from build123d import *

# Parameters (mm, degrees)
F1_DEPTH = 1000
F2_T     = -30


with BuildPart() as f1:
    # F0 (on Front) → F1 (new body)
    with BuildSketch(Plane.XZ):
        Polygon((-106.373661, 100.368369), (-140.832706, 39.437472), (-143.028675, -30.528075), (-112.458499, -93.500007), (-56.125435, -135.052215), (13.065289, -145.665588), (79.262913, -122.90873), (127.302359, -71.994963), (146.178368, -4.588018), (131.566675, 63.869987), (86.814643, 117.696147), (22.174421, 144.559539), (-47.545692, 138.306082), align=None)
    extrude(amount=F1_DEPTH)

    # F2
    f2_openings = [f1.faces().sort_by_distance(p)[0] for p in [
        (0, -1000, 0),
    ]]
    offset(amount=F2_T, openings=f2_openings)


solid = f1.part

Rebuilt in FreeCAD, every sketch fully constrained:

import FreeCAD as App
import Part
import Sketcher
from FreeCAD import Vector


def faces_at(feature, points):
    """Names of the faces that lie closest to the given points."""
    faces = feature.Shape.Faces
    near = lambda p: min(range(len(faces)), key=lambda i: faces[i].distToShape(Part.Vertex(*p))[0])
    return sorted({f"Face{near(p) + 1}" for p in points})


def add_polygon(sketch, points):
    """Adds a closed chain of lines whose ends are joined by coincident constraints."""
    first, n = sketch.GeometryCount, len(points)
    for a, b in zip(points, points[1:] + points[:1]):
        sketch.addGeometry(Part.LineSegment(App.Vector(*a, 0), App.Vector(*b, 0)), False)
    for i in range(n):
        sketch.addConstraint(Sketcher.Constraint("Coincident", first + i, 2, first + (i + 1) % n, 1))

doc = App.newDocument("Part")
body = doc.addObject("PartDesign::Body", "Body")

sketch1 = body.newObject("Sketcher::SketchObject", "Sketch")
sketch1.AttachmentSupport = (doc.getObject("XZ_Plane"), [""])
sketch1.MapMode = "FlatFace"
add_polygon(sketch1, [(-106.373661, 100.368369), (-140.832706, 39.437472), (-143.028675, -30.528075), (-112.458499, -93.500007), (-56.125435, -135.052215), (13.065289, -145.665588), (79.262913, -122.90873), (127.302359, -71.994963), (146.178368, -4.588018), (131.566675, 63.869987), (86.814643, 117.696147), (22.174421, 144.559539), (-47.545692, 138.306082)])
sketch1.addConstraint(Sketcher.Constraint("Equal", 0, 1))
sketch1.addConstraint(Sketcher.Constraint("Equal", 1, 2))
sketch1.addConstraint(Sketcher.Constraint("Equal", 2, 3))
sketch1.addConstraint(Sketcher.Constraint("Equal", 3, 4))
sketch1.addConstraint(Sketcher.Constraint("Equal", 4, 5))
sketch1.addConstraint(Sketcher.Constraint("Equal", 5, 6))
sketch1.addConstraint(Sketcher.Constraint("Equal", 6, 7))
sketch1.addConstraint(Sketcher.Constraint("Equal", 7, 8))
sketch1.addConstraint(Sketcher.Constraint("Equal", 8, 9))
sketch1.addConstraint(Sketcher.Constraint("Equal", 9, 10))
sketch1.addConstraint(Sketcher.Constraint("Equal", 10, 11))
sketch1.addConstraint(Sketcher.Constraint("Equal", 11, 12))
sketch1.addConstraint(Sketcher.Constraint("Distance", 0, 70.0))
sketch1.addConstraint(Sketcher.Constraint("DistanceX", 2, 2, -1, 1, 112.458499))
sketch1.addConstraint(Sketcher.Constraint("DistanceY", 5, 2, 0, 2, 162.346202))
sketch1.addConstraint(Sketcher.Constraint("DistanceX", -1, 1, 4, 2, 13.065289))
sketch1.addConstraint(Sketcher.Constraint("DistanceY", 4, 2, -1, 1, 145.665588))
sketch1.addConstraint(Sketcher.Constraint("DistanceY", 5, 2, -1, 1, 122.90873))
sketch1.addConstraint(Sketcher.Constraint("DistanceX", -1, 1, 6, 2, 127.302359))
sketch1.addConstraint(Sketcher.Constraint("DistanceX", -1, 1, 7, 2, 146.178368))
sketch1.addConstraint(Sketcher.Constraint("DistanceX", -1, 1, 10, 2, 22.174421))
sketch1.addConstraint(Sketcher.Constraint("DistanceY", -1, 1, 10, 2, 144.559539))
sketch1.addConstraint(Sketcher.Constraint("DistanceY", -1, 1, 11, 2, 138.306082))
sketch1.addConstraint(Sketcher.Constraint("DistanceX", 12, 2, -1, 1, 106.373661))
sketch1.addConstraint(Sketcher.Constraint("DistanceX", 1, 2, 0, 2, 2.195969))
sketch1.addConstraint(Sketcher.Constraint("DistanceY", 6, 2, 8, 2, 135.86495))
pad1 = body.newObject("PartDesign::Pad", "Pad")
pad1.Profile = sketch1
pad1.Length = 1000
doc.recompute()

thickness = body.newObject("PartDesign::Thickness", "Thickness")
thickness.Base = (pad1, faces_at(pad1, [(1.575, -1000, -0.553)]))
thickness.Value = 30
thickness.Reversed = True
thickness.Join = "Arc"

doc.recompute()
